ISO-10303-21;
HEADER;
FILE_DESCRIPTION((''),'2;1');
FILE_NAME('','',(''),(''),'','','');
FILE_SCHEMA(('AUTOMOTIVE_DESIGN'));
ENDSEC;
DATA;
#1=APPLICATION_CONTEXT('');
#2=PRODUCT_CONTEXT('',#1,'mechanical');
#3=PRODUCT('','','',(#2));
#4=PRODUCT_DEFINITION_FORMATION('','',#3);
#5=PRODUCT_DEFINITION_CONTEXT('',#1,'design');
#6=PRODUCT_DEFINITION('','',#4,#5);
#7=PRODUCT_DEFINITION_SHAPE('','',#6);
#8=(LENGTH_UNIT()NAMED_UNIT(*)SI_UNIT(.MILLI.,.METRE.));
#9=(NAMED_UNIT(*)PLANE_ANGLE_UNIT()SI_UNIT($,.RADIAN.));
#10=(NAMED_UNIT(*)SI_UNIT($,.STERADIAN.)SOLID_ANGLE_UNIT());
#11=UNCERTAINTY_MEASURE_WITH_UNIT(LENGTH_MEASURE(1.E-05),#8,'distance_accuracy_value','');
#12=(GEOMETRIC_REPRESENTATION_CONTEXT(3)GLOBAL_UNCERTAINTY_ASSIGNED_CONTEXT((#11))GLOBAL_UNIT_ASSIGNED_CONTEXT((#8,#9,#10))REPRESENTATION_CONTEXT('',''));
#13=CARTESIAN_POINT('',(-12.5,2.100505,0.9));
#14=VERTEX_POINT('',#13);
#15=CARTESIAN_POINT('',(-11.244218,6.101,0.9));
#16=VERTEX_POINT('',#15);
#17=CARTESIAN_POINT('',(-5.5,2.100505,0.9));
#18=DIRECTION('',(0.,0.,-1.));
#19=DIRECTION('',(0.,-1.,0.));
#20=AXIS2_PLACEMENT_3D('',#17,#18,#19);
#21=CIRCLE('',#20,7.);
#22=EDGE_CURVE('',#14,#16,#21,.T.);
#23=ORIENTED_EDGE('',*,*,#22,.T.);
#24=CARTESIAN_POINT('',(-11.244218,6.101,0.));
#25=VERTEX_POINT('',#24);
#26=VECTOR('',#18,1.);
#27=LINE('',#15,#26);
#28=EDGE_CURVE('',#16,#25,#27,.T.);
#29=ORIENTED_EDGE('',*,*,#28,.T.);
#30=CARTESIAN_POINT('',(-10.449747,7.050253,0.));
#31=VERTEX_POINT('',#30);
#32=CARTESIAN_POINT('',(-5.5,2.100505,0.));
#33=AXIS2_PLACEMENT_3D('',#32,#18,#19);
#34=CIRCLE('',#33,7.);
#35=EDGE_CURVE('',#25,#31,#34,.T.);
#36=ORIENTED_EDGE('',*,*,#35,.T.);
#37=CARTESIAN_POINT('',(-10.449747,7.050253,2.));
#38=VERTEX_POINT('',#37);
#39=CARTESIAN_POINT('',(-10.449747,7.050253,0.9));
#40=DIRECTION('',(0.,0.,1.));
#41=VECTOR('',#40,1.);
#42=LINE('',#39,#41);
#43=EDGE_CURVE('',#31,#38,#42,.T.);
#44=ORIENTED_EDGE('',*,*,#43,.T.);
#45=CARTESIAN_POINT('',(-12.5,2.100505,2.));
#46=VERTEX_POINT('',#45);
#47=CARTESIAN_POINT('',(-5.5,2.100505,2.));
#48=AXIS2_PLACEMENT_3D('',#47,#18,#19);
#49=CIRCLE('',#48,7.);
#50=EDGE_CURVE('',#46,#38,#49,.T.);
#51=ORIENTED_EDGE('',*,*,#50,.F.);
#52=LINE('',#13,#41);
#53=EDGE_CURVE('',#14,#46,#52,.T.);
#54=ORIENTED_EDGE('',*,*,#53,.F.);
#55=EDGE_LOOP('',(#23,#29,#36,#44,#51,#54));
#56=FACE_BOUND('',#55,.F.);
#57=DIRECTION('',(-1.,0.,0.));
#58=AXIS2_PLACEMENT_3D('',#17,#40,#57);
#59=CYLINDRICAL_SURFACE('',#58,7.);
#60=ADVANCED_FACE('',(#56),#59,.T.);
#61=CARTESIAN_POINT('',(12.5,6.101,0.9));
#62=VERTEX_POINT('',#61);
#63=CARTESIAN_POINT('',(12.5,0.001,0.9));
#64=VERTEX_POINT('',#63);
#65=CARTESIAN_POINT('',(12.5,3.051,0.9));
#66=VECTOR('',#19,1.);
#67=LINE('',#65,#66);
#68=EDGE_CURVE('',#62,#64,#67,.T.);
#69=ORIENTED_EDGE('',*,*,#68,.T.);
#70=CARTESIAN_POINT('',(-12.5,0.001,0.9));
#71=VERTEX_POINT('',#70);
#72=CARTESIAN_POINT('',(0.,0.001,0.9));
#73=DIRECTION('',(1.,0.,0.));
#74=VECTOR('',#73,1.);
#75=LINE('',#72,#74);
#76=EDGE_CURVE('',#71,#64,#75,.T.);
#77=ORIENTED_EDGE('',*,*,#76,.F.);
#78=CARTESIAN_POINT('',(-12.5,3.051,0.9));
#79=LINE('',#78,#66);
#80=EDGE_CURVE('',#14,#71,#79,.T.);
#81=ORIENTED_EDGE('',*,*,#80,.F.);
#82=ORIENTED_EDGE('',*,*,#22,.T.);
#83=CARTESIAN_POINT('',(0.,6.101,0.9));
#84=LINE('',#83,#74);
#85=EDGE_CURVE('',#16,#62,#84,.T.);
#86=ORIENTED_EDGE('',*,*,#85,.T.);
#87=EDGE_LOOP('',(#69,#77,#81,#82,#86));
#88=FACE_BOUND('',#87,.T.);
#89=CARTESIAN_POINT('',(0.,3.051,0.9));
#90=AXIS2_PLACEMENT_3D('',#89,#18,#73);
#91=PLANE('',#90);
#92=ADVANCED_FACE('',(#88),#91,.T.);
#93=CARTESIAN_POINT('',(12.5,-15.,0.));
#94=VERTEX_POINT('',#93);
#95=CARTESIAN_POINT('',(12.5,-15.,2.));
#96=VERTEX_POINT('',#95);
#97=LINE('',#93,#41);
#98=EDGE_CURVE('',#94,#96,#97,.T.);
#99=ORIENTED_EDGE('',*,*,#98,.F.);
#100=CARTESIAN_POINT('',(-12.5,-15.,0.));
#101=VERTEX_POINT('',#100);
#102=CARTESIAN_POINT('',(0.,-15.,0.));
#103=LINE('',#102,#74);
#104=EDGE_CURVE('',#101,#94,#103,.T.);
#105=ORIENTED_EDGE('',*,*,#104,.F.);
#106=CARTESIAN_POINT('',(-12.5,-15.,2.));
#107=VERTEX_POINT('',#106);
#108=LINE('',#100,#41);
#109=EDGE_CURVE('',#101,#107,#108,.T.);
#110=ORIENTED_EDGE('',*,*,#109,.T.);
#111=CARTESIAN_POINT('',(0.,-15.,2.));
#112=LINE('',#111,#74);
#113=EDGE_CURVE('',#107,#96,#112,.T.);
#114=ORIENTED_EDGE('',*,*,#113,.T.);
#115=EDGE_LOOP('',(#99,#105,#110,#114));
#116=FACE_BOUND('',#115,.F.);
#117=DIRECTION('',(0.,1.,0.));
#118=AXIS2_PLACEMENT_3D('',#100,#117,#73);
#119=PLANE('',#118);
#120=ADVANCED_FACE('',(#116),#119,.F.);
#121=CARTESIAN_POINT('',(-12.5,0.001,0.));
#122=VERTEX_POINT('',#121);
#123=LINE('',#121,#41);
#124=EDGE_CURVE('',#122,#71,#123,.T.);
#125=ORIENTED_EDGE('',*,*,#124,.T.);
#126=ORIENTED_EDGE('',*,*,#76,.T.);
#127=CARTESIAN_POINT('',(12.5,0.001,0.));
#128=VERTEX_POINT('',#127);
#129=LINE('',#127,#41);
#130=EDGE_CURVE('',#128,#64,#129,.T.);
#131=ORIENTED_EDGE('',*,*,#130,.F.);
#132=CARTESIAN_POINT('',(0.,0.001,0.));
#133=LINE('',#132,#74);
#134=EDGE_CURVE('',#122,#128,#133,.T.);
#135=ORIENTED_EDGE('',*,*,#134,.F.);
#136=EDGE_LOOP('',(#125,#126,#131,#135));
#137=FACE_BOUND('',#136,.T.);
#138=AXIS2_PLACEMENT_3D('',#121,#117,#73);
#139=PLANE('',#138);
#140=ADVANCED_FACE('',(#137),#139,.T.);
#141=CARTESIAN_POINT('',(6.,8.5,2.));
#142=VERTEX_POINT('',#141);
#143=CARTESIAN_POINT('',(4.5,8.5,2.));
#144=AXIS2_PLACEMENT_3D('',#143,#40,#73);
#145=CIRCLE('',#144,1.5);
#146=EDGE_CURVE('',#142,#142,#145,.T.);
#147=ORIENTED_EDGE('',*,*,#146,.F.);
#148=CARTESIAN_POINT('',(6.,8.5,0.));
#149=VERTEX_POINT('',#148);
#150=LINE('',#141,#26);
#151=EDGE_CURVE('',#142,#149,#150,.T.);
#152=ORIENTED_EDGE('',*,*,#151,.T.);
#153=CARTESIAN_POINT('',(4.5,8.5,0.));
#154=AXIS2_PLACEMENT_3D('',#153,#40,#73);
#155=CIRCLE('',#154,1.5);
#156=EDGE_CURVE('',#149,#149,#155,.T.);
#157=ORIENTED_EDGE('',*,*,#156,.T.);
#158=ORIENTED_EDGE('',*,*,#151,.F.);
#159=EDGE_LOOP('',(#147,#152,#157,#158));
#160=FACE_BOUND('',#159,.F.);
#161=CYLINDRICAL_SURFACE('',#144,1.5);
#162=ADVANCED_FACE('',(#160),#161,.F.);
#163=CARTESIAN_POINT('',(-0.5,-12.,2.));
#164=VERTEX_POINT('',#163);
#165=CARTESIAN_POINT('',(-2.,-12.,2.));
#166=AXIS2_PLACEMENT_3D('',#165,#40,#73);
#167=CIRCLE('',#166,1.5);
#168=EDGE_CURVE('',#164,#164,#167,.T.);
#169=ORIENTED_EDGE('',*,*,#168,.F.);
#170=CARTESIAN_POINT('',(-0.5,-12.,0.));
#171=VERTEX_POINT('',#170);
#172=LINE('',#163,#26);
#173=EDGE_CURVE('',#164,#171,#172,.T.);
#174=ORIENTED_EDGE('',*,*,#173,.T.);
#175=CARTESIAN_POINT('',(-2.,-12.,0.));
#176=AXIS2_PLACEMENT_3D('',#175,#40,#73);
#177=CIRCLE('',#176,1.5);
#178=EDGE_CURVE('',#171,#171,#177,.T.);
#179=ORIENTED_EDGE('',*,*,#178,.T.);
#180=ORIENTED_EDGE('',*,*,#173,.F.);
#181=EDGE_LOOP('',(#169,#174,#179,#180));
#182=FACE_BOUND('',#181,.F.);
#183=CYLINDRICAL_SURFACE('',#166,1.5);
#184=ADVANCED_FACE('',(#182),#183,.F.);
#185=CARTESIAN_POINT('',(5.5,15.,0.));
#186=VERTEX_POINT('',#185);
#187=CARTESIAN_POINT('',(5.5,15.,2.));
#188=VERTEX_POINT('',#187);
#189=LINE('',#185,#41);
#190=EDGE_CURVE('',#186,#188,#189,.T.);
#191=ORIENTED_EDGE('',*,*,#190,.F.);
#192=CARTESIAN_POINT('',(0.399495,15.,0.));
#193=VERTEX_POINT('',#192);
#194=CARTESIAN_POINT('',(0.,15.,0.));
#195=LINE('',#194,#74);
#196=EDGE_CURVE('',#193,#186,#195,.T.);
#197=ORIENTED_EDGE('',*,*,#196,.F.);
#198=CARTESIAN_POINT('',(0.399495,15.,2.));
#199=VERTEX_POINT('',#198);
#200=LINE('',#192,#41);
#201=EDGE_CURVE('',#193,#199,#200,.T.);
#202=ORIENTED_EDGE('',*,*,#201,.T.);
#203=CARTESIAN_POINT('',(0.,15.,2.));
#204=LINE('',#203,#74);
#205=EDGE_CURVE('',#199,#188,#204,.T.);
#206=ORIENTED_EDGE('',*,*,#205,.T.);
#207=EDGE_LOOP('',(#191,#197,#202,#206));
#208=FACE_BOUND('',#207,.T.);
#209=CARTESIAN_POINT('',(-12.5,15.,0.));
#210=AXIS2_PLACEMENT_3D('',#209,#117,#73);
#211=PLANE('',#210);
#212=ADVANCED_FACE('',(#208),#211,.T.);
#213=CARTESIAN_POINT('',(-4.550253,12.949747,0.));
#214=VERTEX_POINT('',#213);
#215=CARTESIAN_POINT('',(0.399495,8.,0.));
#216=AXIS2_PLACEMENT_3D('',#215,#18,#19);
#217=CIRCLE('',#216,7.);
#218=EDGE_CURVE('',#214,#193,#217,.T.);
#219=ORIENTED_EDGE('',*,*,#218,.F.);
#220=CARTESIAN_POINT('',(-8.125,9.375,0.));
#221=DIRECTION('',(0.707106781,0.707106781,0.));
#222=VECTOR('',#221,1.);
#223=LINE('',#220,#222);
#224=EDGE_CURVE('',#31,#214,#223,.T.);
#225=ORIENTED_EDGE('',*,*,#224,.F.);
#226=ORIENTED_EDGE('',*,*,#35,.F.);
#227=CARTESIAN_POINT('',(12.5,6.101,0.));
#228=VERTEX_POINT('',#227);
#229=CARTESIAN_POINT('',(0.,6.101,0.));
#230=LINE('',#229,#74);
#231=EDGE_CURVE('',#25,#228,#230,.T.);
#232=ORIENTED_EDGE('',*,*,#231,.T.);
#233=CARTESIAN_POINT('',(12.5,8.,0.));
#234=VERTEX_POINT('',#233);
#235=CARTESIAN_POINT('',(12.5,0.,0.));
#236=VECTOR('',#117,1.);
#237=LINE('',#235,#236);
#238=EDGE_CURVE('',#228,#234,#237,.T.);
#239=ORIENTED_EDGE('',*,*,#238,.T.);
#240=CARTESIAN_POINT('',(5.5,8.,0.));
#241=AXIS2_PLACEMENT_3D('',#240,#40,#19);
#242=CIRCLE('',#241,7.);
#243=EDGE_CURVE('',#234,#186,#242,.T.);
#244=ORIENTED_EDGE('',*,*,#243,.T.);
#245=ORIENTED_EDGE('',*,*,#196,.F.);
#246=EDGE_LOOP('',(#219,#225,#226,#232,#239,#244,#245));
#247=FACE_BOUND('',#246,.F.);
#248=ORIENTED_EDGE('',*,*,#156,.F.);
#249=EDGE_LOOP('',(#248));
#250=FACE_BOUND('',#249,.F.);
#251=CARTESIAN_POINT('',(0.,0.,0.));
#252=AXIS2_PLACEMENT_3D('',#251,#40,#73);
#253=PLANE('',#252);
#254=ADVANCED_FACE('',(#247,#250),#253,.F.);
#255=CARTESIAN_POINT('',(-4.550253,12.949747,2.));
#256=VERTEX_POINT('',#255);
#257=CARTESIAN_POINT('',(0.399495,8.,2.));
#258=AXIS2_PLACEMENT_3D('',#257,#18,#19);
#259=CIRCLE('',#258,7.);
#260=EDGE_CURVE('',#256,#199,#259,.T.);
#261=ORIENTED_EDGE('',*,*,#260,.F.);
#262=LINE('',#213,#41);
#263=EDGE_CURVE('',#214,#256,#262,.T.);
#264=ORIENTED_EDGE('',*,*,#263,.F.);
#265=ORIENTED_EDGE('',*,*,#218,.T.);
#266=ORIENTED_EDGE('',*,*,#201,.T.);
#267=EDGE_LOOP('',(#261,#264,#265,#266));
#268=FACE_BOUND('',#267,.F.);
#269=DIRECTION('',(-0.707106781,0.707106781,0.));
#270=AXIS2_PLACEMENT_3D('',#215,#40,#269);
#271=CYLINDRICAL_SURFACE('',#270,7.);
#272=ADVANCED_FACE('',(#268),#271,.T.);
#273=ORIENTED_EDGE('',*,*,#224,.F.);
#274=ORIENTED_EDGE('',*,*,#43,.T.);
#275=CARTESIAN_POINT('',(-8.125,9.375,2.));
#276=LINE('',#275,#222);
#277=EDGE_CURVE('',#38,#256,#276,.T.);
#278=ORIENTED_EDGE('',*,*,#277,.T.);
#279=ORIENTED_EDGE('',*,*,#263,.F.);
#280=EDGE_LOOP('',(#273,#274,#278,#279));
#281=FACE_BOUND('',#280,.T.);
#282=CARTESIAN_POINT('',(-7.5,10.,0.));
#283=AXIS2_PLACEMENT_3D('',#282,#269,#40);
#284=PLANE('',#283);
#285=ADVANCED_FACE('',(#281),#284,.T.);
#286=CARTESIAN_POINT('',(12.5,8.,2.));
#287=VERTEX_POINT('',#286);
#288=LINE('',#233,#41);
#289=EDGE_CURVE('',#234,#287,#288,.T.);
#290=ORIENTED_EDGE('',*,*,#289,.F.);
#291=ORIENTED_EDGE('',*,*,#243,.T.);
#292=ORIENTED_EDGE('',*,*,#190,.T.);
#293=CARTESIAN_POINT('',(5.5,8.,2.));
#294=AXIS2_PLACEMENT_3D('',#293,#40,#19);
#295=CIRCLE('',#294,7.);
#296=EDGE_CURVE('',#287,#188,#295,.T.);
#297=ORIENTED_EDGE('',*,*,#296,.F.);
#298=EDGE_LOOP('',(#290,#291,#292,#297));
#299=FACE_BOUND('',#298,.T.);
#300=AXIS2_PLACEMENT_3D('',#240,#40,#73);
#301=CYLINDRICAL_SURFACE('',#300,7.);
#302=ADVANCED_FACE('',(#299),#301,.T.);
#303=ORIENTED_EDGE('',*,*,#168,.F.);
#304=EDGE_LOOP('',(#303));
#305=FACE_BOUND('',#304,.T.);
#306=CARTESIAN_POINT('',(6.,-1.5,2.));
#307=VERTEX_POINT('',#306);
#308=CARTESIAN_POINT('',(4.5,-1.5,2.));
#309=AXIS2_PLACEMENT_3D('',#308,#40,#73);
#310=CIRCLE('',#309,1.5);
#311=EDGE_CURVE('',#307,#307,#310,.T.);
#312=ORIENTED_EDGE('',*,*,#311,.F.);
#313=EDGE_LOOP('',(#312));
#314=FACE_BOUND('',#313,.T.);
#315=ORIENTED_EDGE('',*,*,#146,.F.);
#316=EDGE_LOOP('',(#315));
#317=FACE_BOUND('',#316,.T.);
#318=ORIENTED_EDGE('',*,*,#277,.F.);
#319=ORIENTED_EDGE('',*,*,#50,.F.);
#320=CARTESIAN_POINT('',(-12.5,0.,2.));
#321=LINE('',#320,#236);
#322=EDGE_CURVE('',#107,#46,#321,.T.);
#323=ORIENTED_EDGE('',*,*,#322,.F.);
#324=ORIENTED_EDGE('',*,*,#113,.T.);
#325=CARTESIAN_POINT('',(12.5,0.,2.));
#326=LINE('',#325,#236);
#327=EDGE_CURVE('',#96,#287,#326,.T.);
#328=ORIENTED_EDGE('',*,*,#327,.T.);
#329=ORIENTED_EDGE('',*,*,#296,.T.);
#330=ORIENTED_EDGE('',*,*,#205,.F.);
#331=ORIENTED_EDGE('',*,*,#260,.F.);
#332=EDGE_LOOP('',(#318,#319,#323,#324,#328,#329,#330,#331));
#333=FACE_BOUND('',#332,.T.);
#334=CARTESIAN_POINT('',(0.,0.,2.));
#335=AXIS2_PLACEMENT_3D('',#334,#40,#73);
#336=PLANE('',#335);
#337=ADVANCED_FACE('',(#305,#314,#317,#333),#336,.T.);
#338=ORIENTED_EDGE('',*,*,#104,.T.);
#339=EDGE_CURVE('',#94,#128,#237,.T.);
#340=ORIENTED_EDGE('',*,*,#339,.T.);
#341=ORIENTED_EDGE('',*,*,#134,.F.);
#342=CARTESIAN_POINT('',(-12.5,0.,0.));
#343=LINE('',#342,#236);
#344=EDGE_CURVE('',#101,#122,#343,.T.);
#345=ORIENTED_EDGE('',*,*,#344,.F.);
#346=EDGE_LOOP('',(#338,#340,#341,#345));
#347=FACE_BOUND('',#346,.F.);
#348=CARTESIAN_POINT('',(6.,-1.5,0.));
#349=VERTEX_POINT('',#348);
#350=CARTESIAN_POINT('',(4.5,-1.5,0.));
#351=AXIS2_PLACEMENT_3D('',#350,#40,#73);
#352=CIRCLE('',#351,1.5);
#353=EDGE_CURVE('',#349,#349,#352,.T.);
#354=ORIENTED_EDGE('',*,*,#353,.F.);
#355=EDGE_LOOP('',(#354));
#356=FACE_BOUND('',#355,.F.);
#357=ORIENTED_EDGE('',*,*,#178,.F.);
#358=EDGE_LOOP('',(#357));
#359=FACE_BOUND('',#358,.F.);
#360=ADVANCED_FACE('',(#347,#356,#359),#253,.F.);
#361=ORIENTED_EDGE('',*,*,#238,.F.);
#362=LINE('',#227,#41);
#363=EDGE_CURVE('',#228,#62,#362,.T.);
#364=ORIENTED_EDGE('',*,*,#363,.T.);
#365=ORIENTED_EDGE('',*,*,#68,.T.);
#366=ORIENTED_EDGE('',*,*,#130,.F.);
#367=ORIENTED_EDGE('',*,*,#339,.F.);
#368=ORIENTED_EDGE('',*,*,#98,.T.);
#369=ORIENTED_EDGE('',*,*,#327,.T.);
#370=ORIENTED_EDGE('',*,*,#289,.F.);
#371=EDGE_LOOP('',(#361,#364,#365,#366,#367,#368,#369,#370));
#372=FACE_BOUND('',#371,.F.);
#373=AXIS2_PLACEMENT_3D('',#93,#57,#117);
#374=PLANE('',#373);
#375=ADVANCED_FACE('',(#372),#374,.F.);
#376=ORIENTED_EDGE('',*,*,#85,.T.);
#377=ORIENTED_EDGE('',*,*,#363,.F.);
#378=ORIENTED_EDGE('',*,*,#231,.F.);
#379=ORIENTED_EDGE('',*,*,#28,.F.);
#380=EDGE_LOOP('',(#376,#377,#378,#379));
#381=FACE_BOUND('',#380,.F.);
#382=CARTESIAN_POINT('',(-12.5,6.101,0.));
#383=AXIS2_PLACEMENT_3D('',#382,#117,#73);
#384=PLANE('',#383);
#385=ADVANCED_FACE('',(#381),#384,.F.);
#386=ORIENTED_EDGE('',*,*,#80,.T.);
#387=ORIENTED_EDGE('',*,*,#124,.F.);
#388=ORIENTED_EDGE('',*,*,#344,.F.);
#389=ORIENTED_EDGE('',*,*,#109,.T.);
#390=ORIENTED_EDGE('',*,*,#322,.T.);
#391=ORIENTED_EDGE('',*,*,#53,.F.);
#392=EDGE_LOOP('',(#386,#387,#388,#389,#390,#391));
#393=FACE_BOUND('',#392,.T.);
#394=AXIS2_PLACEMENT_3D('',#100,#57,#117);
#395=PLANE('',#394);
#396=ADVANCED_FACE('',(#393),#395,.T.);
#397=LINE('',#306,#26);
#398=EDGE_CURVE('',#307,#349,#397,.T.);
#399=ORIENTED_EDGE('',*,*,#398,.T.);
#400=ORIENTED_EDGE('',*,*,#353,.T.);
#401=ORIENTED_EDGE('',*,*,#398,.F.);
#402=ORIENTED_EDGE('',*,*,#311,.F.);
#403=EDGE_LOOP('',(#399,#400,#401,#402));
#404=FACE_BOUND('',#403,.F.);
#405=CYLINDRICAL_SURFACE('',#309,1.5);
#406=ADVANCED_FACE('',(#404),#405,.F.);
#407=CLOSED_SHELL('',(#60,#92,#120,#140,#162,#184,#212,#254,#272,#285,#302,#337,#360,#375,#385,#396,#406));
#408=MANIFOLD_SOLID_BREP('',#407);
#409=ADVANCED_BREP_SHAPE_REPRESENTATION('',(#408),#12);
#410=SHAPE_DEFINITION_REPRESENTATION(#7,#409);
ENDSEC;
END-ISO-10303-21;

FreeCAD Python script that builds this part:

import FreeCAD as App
import Part
import Sketcher


def edges_at(feature, points):
    """Names of the edges that pass closest to the given points."""
    edges = feature.Shape.Edges
    near = lambda p: min(range(len(edges)), key=lambda i: edges[i].distToShape(Part.Vertex(*p))[0])
    return sorted({f"Edge{near(p) + 1}" for p in points})


def add_polygon(sketch, points):
    """Adds a closed chain of lines whose ends are joined by coincident constraints."""
    first, n = sketch.GeometryCount, len(points)
    for a, b in zip(points, points[1:] + points[:1]):
        sketch.addGeometry(Part.LineSegment(App.Vector(*a, 0), App.Vector(*b, 0)), False)
    for i in range(n):
        sketch.addConstraint(Sketcher.Constraint("Coincident", first + i, 2, first + (i + 1) % n, 1))

doc = App.newDocument("Part")
body = doc.addObject("PartDesign::Body", "Body")

# Sketch on XY plane
sketch1 = body.newObject("Sketcher::SketchObject", "Sketch")
sketch1.AttachmentSupport = (doc.getObject("XY_Plane"), [""])
sketch1.MapMode = "FlatFace"
add_polygon(sketch1, [(-12.5, 15), (-12.5, -15), (12.5, -15), (12.5, 15)])  # lines 0-3
sketch1.addConstraint(Sketcher.Constraint("Vertical", 0))
sketch1.addConstraint(Sketcher.Constraint("Horizontal", 1))
sketch1.addConstraint(Sketcher.Constraint("Vertical", 2))
sketch1.addConstraint(Sketcher.Constraint("Horizontal", 3))
sketch1.addConstraint(Sketcher.Constraint("Symmetric", 0, 2, 2, 2, -1, 1))
sketch1.addConstraint(Sketcher.Constraint("DistanceX", 1, 1, 1, 2, 25.0))
sketch1.addConstraint(Sketcher.Constraint("DistanceY", 0, 2, 0, 1, 30.0))
pad1 = body.newObject("PartDesign::Pad", "Pad")
pad1.Profile = sketch1
pad1.Length = 2

# Sketch on XY plane
sketch2 = body.newObject("Sketcher::SketchObject", "Sketch001")
sketch2.AttachmentSupport = (doc.getObject("XY_Plane"), [""])
sketch2.MapMode = "FlatFace"
sketch2.AttachmentOffset = App.Placement(App.Vector(0, 0, 2), App.Rotation())
sketch2.addGeometry(Part.Circle(App.Vector(-2, -12, 0), App.Vector(0, 0, 1), 1.5), False)
sketch2.addGeometry(Part.Circle(App.Vector(4.5, -1.5, 0), App.Vector(0, 0, 1), 1.5), False)
sketch2.addGeometry(Part.Circle(App.Vector(4.5, 8.5, 0), App.Vector(0, 0, 1), 1.5), False)
sketch2.addConstraint(Sketcher.Constraint("Equal", 0, 1))
sketch2.addConstraint(Sketcher.Constraint("Equal", 1, 2))
sketch2.addConstraint(Sketcher.Constraint("Vertical", 1, 3, 2, 3))
sketch2.addConstraint(Sketcher.Constraint("Diameter", 0, 3.0))
sketch2.addConstraint(Sketcher.Constraint("DistanceX", 0, 3, -1, 1, 2.0))
sketch2.addConstraint(Sketcher.Constraint("DistanceY", 0, 3, -1, 1, 12.0))
sketch2.addConstraint(Sketcher.Constraint("DistanceY", 1, 3, 2, 3, 10.0))
sketch2.addConstraint(Sketcher.Constraint("DistanceX", -1, 1, 1, 3, 4.5))
sketch2.addConstraint(Sketcher.Constraint("DistanceY", 1, 3, -1, 1, 1.5))
pocket1 = body.newObject("PartDesign::Pocket", "Pocket")
pocket1.Profile = sketch2
pocket1.Type = "ThroughAll"

# Sketch on XY plane
sketch3 = body.newObject("Sketcher::SketchObject", "Sketch002")
sketch3.AttachmentSupport = (doc.getObject("XY_Plane"), [""])
sketch3.MapMode = "FlatFace"
add_polygon(sketch3, [(-12.5, 0.001), (-12.5, 6.101), (12.5, 6.101), (12.5, 0.001)])  # lines 0-3
sketch3.addConstraint(Sketcher.Constraint("Vertical", 0))
sketch3.addConstraint(Sketcher.Constraint("Horizontal", 1))
sketch3.addConstraint(Sketcher.Constraint("Vertical", 2))
sketch3.addConstraint(Sketcher.Constraint("Horizontal", 3))
sketch3.addConstraint(Sketcher.Constraint("DistanceX", 1, 1, 1, 2, 25.0))
sketch3.addConstraint(Sketcher.Constraint("DistanceY", 0, 1, 0, 2, 6.1))
sketch3.addConstraint(Sketcher.Constraint("DistanceX", 0, 2, -1, 1, 12.5))
sketch3.addConstraint(Sketcher.Constraint("DistanceY", -1, 1, 0, 2, 6.101))
pocket2 = body.newObject("PartDesign::Pocket", "Pocket001")
pocket2.Profile = sketch3
pocket2.Length = 0.9
pocket2.Reversed = True
doc.recompute()

chamfer = body.newObject("PartDesign::Chamfer", "Chamfer")
chamfer.Base = (pocket2, edges_at(pocket2, [(-12.5, 15, 1)]))
chamfer.Size = 10
doc.recompute()

fillet = body.newObject("PartDesign::Fillet", "Fillet")
fillet.Base = (chamfer, edges_at(chamfer, [(-12.5, 5, 1.45), (-2.5, 15, 1), (12.5, 15, 1)]))
fillet.Radius = 7

doc.recompute()
